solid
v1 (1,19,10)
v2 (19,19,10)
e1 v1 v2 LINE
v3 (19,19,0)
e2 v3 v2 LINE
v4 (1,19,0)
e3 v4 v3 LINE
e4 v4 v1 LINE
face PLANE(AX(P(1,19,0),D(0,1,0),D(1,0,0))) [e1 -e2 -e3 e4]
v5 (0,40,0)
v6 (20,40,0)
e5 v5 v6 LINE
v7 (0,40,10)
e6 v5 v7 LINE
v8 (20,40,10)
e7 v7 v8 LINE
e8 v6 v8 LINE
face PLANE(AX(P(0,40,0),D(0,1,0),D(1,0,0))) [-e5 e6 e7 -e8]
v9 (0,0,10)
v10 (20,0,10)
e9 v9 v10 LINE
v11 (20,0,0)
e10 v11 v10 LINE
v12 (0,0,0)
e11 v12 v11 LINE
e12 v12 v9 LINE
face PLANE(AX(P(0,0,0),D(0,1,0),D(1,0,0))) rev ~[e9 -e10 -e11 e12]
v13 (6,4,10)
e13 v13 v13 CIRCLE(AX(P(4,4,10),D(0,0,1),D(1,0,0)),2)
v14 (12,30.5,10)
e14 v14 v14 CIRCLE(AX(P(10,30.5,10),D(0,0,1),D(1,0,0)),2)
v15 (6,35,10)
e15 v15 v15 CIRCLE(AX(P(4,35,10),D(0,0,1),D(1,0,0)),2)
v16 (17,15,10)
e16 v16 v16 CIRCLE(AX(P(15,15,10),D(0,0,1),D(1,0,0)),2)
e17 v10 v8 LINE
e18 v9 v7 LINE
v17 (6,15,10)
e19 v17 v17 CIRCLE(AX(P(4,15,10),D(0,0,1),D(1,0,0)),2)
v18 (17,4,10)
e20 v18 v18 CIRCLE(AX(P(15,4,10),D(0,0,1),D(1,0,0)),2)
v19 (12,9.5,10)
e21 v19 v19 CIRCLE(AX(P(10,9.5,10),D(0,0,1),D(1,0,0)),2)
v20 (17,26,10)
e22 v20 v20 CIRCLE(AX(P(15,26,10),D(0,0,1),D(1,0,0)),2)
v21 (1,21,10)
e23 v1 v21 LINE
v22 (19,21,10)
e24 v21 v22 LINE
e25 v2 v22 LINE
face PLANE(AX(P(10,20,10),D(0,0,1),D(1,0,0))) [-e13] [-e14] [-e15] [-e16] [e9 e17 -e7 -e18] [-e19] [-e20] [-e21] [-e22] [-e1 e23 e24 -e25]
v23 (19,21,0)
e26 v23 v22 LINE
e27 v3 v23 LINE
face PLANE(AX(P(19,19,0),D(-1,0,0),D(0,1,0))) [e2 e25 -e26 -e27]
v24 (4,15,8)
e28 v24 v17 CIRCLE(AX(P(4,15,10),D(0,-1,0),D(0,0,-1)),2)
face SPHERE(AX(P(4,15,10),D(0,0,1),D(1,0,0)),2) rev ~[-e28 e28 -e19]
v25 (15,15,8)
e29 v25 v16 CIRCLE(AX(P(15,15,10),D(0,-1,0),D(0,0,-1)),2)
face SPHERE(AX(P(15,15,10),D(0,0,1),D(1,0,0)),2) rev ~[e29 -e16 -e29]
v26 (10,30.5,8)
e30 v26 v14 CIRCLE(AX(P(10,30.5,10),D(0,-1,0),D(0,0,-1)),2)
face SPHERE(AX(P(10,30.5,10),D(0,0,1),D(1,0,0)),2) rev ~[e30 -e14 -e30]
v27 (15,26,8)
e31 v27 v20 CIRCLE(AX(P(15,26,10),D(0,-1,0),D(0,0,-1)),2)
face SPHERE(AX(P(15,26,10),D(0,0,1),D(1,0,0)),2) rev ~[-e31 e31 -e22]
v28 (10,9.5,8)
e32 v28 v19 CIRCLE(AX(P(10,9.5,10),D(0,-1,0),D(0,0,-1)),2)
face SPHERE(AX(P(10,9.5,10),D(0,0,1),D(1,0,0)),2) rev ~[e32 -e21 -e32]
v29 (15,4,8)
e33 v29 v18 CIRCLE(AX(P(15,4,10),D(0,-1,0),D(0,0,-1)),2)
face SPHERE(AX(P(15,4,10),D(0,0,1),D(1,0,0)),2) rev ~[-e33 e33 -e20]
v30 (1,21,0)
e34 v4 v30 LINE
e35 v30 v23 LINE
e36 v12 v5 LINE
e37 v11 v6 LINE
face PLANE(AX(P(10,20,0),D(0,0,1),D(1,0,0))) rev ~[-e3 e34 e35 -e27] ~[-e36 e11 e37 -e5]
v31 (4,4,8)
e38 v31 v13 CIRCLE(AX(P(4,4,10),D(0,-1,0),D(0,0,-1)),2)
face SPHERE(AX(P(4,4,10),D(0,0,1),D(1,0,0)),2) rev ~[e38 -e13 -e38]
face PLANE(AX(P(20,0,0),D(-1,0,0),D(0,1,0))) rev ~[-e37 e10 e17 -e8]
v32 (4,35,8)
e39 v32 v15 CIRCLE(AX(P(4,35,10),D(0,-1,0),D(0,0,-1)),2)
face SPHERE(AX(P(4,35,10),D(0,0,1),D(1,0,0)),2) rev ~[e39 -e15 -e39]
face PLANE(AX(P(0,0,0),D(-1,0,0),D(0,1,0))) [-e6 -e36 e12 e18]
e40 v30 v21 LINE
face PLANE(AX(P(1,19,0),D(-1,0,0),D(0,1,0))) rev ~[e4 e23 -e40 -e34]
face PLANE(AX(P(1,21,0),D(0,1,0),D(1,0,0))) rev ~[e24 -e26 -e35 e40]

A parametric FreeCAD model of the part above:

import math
import FreeCAD as App
import Part
import Sketcher

V = App.Vector

doc = App.newDocument("Part")
body = doc.addObject("PartDesign::Body", "Body")

sketch1 = body.newObject("Sketcher::SketchObject", "Sketch")
sketch1.AttachmentSupport = (doc.getObject("XZ_Plane"), [""])
sketch1.MapMode = "FlatFace"
sketch1.AttachmentOffset = App.Placement(V(0, 0, -4), App.Rotation())
sketch1.addGeometry(Part.ArcOfCircle(Part.Circle(V(4, 10, 0), V(0, 0, 1), 2), math.radians(-90), math.radians(90)), False)
sketch1.addGeometry(Part.LineSegment(V(4, 12, 0), V(4, 8, 0)), False)
sketch1.addGeometry(Part.LineSegment(V(4, 8, 0), V(4, 12, 0)), True)
sketch1.addConstraint(Sketcher.Constraint("Coincident", 0, 1, 1, 2))
sketch1.addConstraint(Sketcher.Constraint("Coincident", 1, 1, 0, 2))
sketch1.addConstraint(Sketcher.Constraint("Vertical", 1))
sketch1.addConstraint(Sketcher.Constraint("Vertical", 2))
sketch1.addConstraint(Sketcher.Constraint("Coincident", 2, 1, 0, 1))
sketch1.addConstraint(Sketcher.Constraint("Equal", 1, 2))
sketch1.addConstraint(Sketcher.Constraint("Radius", 0, 2.0))
sketch1.addConstraint(Sketcher.Constraint("DistanceX", -1, 1, 0, 3, 4.0))
sketch1.addConstraint(Sketcher.Constraint("DistanceY", -1, 1, 0, 3, 10.0))
sketch1.addConstraint(Sketcher.Constraint("DistanceX", -1, 1, 0, 1, 4.0))
revolution = body.newObject("PartDesign::Revolution", "Revolution")
revolution.Profile = sketch1
revolution.ReferenceAxis = (sketch1, ["Axis0"])
revolution.Angle = 360
body2 = doc.addObject("PartDesign::Body", "Body001")

sketch2 = body2.newObject("Sketcher::SketchObject", "Sketch001")
sketch2.AttachmentSupport = (doc.getObject("XZ_Plane001"), [""])
sketch2.MapMode = "FlatFace"
sketch2.AttachmentOffset = App.Placement(V(0, 0, -4), App.Rotation())
sketch2.addGeometry(Part.ArcOfCircle(Part.Circle(V(15, 10, 0), V(0, 0, 1), 2), math.radians(-90), math.radians(90)), False)
sketch2.addGeometry(Part.LineSegment(V(15, 12, 0), V(15, 8, 0)), False)
sketch2.addGeometry(Part.LineSegment(V(15, 8, 0), V(15, 12, 0)), True)
sketch2.addConstraint(Sketcher.Constraint("Coincident", 0, 1, 1, 2))
sketch2.addConstraint(Sketcher.Constraint("Coincident", 1, 1, 0, 2))
sketch2.addConstraint(Sketcher.Constraint("Vertical", 1))
sketch2.addConstraint(Sketcher.Constraint("Vertical", 2))
sketch2.addConstraint(Sketcher.Constraint("Coincident", 2, 1, 0, 1))
sketch2.addConstraint(Sketcher.Constraint("Equal", 1, 2))
sketch2.addConstraint(Sketcher.Constraint("Radius", 0, 2.0))
sketch2.addConstraint(Sketcher.Constraint("DistanceX", -1, 1, 0, 3, 15.0))
sketch2.addConstraint(Sketcher.Constraint("DistanceY", -1, 1, 0, 3, 10.0))
sketch2.addConstraint(Sketcher.Constraint("DistanceX", -1, 1, 0, 1, 15.0))
revolution2 = body2.newObject("PartDesign::Revolution", "Revolution001")
revolution2.Profile = sketch2
revolution2.ReferenceAxis = (sketch2, ["Axis0"])
revolution2.Angle = 360
body3 = doc.addObject("PartDesign::Body", "Body002")

sketch3 = body3.newObject("Sketcher::SketchObject", "Sketch002")
sketch3.AttachmentSupport = (doc.getObject("XZ_Plane002"), [""])
sketch3.MapMode = "FlatFace"
sketch3.AttachmentOffset = App.Placement(V(0, 0, -35), App.Rotation())
sketch3.addGeometry(Part.ArcOfCircle(Part.Circle(V(4, 10, 0), V(0, 0, 1), 2), math.radians(-90), math.radians(90)), False)
sketch3.addGeometry(Part.LineSegment(V(4, 12, 0), V(4, 8, 0)), False)
sketch3.addGeometry(Part.LineSegment(V(4, 8, 0), V(4, 12, 0)), True)
sketch3.addConstraint(Sketcher.Constraint("Coincident", 0, 1, 1, 2))
sketch3.addConstraint(Sketcher.Constraint("Coincident", 1, 1, 0, 2))
sketch3.addConstraint(Sketcher.Constraint("Vertical", 1))
sketch3.addConstraint(Sketcher.Constraint("Vertical", 2))
sketch3.addConstraint(Sketcher.Constraint("Coincident", 2, 1, 0, 1))
sketch3.addConstraint(Sketcher.Constraint("Equal", 1, 2))
sketch3.addConstraint(Sketcher.Constraint("Radius", 0, 2.0))
sketch3.addConstraint(Sketcher.Constraint("DistanceX", -1, 1, 0, 3, 4.0))
sketch3.addConstraint(Sketcher.Constraint("DistanceY", -1, 1, 0, 3, 10.0))
sketch3.addConstraint(Sketcher.Constraint("DistanceX", -1, 1, 0, 1, 4.0))
revolution3 = body3.newObject("PartDesign::Revolution", "Revolution002")
revolution3.Profile = sketch3
revolution3.ReferenceAxis = (sketch3, ["Axis0"])
revolution3.Angle = 360
body4 = doc.addObject("PartDesign::Body", "Body003")

sketch4 = body4.newObject("Sketcher::SketchObject", "Sketch003")
sketch4.AttachmentSupport = (doc.getObject("XZ_Plane003"), [""])
sketch4.MapMode = "FlatFace"
sketch4.AttachmentOffset = App.Placement(V(0, 0, -15), App.Rotation())
sketch4.addGeometry(Part.ArcOfCircle(Part.Circle(V(15, 10, 0), V(0, 0, 1), 2), math.radians(-90), math.radians(90)), False)
sketch4.addGeometry(Part.LineSegment(V(15, 12, 0), V(15, 8, 0)), False)
sketch4.addGeometry(Part.LineSegment(V(15, 8, 0), V(15, 12, 0)), True)
sketch4.addConstraint(Sketcher.Constraint("Coincident", 0, 1, 1, 2))
sketch4.addConstraint(Sketcher.Constraint("Coincident", 1, 1, 0, 2))
sketch4.addConstraint(Sketcher.Constraint("Vertical", 1))
sketch4.addConstraint(Sketcher.Constraint("Vertical", 2))
sketch4.addConstraint(Sketcher.Constraint("Coincident", 2, 1, 0, 1))
sketch4.addConstraint(Sketcher.Constraint("Equal", 1, 2))
sketch4.addConstraint(Sketcher.Constraint("Radius", 0, 2.0))
sketch4.addConstraint(Sketcher.Constraint("DistanceX", -1, 1, 0, 3, 15.0))
sketch4.addConstraint(Sketcher.Constraint("DistanceY", -1, 1, 0, 3, 10.0))
sketch4.addConstraint(Sketcher.Constraint("DistanceX", -1, 1, 0, 1, 15.0))
revolution4 = body4.newObject("PartDesign::Revolution", "Revolution003")
revolution4.Profile = sketch4
revolution4.ReferenceAxis = (sketch4, ["Axis0"])
revolution4.Angle = 360
body5 = doc.addObject("PartDesign::Body", "Body004")

sketch5 = body5.newObject("Sketcher::SketchObject", "Sketch004")
sketch5.AttachmentSupport = (doc.getObject("XZ_Plane004"), [""])
sketch5.MapMode = "FlatFace"
sketch5.AttachmentOffset = App.Placement(V(0, 0, -30.5), App.Rotation())
sketch5.addGeometry(Part.ArcOfCircle(Part.Circle(V(10, 10, 0), V(0, 0, 1), 2), math.radians(-90), math.radians(90)), False)
sketch5.addGeometry(Part.LineSegment(V(10, 12, 0), V(10, 8, 0)), False)
sketch5.addGeometry(Part.LineSegment(V(10, 8, 0), V(10, 12, 0)), True)
sketch5.addConstraint(Sketcher.Constraint("Coincident", 0, 1, 1, 2))
sketch5.addConstraint(Sketcher.Constraint("Coincident", 1, 1, 0, 2))
sketch5.addConstraint(Sketcher.Constraint("Vertical", 1))
sketch5.addConstraint(Sketcher.Constraint("Vertical", 2))
sketch5.addConstraint(Sketcher.Constraint("Coincident", 2, 1, 0, 1))
sketch5.addConstraint(Sketcher.Constraint("Equal", 1, 2))
sketch5.addConstraint(Sketcher.Constraint("Radius", 0, 2.0))
sketch5.addConstraint(Sketcher.Constraint("DistanceX", -1, 1, 0, 3, 10.0))
sketch5.addConstraint(Sketcher.Constraint("DistanceY", -1, 1, 0, 3, 10.0))
sketch5.addConstraint(Sketcher.Constraint("DistanceX", -1, 1, 0, 1, 10.0))
revolution5 = body5.newObject("PartDesign::Revolution", "Revolution004")
revolution5.Profile = sketch5
revolution5.ReferenceAxis = (sketch5, ["Axis0"])
revolution5.Angle = 360
body6 = doc.addObject("PartDesign::Body", "Body005")

sketch6 = body6.newObject("Sketcher::SketchObject", "Sketch005")
sketch6.AttachmentSupport = (doc.getObject("XZ_Plane005"), [""])
sketch6.MapMode = "FlatFace"
sketch6.AttachmentOffset = App.Placement(V(0, 0, -15), App.Rotation())
sketch6.addGeometry(Part.ArcOfCircle(Part.Circle(V(4, 10, 0), V(0, 0, 1), 2), math.radians(-90), math.radians(90)), False)
sketch6.addGeometry(Part.LineSegment(V(4, 12, 0), V(4, 8, 0)), False)
sketch6.addGeometry(Part.LineSegment(V(4, 8, 0), V(4, 12, 0)), True)
sketch6.addConstraint(Sketcher.Constraint("Coincident", 0, 1, 1, 2))
sketch6.addConstraint(Sketcher.Constraint("Coincident", 1, 1, 0, 2))
sketch6.addConstraint(Sketcher.Constraint("Vertical", 1))
sketch6.addConstraint(Sketcher.Constraint("Vertical", 2))
sketch6.addConstraint(Sketcher.Constraint("Coincident", 2, 1, 0, 1))
sketch6.addConstraint(Sketcher.Constraint("Equal", 1, 2))
sketch6.addConstraint(Sketcher.Constraint("Radius", 0, 2.0))
sketch6.addConstraint(Sketcher.Constraint("DistanceX", -1, 1, 0, 3, 4.0))
sketch6.addConstraint(Sketcher.Constraint("DistanceY", -1, 1, 0, 3, 10.0))
sketch6.addConstraint(Sketcher.Constraint("DistanceX", -1, 1, 0, 1, 4.0))
revolution6 = body6.newObject("PartDesign::Revolution", "Revolution005")
revolution6.Profile = sketch6
revolution6.ReferenceAxis = (sketch6, ["Axis0"])
revolution6.Angle = 360
body7 = doc.addObject("PartDesign::Body", "Body006")

sketch7 = body7.newObject("Sketcher::SketchObject", "Sketch006")
sketch7.AttachmentSupport = (doc.getObject("XZ_Plane006"), [""])
sketch7.MapMode = "FlatFace"
sketch7.AttachmentOffset = App.Placement(V(0, 0, -26), App.Rotation())
sketch7.addGeometry(Part.ArcOfCircle(Part.Circle(V(15, 10, 0), V(0, 0, 1), 2), math.radians(-90), math.radians(90)), False)
sketch7.addGeometry(Part.LineSegment(V(15, 12, 0), V(15, 8, 0)), False)
sketch7.addGeometry(Part.LineSegment(V(15, 8, 0), V(15, 12, 0)), True)
sketch7.addConstraint(Sketcher.Constraint("Coincident", 0, 1, 1, 2))
sketch7.addConstraint(Sketcher.Constraint("Coincident", 1, 1, 0, 2))
sketch7.addConstraint(Sketcher.Constraint("Vertical", 1))
sketch7.addConstraint(Sketcher.Constraint("Vertical", 2))
sketch7.addConstraint(Sketcher.Constraint("Coincident", 2, 1, 0, 1))
sketch7.addConstraint(Sketcher.Constraint("Equal", 1, 2))
sketch7.addConstraint(Sketcher.Constraint("Radius", 0, 2.0))
sketch7.addConstraint(Sketcher.Constraint("DistanceX", -1, 1, 0, 3, 15.0))
sketch7.addConstraint(Sketcher.Constraint("DistanceY", -1, 1, 0, 3, 10.0))
sketch7.addConstraint(Sketcher.Constraint("DistanceX", -1, 1, 0, 1, 15.0))
revolution7 = body7.newObject("PartDesign::Revolution", "Revolution006")
revolution7.Profile = sketch7
revolution7.ReferenceAxis = (sketch7, ["Axis0"])
revolution7.Angle = 360
body8 = doc.addObject("PartDesign::Body", "Body007")

sketch8 = body8.newObject("Sketcher::SketchObject", "Sketch007")
sketch8.AttachmentSupport = (doc.getObject("XZ_Plane007"), [""])
sketch8.MapMode = "FlatFace"
sketch8.AttachmentOffset = App.Placement(V(0, 0, -9.5), App.Rotation())
sketch8.addGeometry(Part.ArcOfCircle(Part.Circle(V(10, 10, 0), V(0, 0, 1), 2), math.radians(-90), math.radians(90)), False)
sketch8.addGeometry(Part.LineSegment(V(10, 12, 0), V(10, 8, 0)), False)
sketch8.addGeometry(Part.LineSegment(V(10, 8, 0), V(10, 12, 0)), True)
sketch8.addConstraint(Sketcher.Constraint("Coincident", 0, 1, 1, 2))
sketch8.addConstraint(Sketcher.Constraint("Coincident", 1, 1, 0, 2))
sketch8.addConstraint(Sketcher.Constraint("Vertical", 1))
sketch8.addConstraint(Sketcher.Constraint("Vertical", 2))
sketch8.addConstraint(Sketcher.Constraint("Coincident", 2, 1, 0, 1))
sketch8.addConstraint(Sketcher.Constraint("Equal", 1, 2))
sketch8.addConstraint(Sketcher.Constraint("Radius", 0, 2.0))
sketch8.addConstraint(Sketcher.Constraint("DistanceX", -1, 1, 0, 3, 10.0))
sketch8.addConstraint(Sketcher.Constraint("DistanceY", -1, 1, 0, 3, 10.0))
sketch8.addConstraint(Sketcher.Constraint("DistanceX", -1, 1, 0, 1, 10.0))
revolution8 = body8.newObject("PartDesign::Revolution", "Revolution007")
revolution8.Profile = sketch8
revolution8.ReferenceAxis = (sketch8, ["Axis0"])
revolution8.Angle = 360
body9 = doc.addObject("PartDesign::Body", "Body008")

sketch9 = body9.newObject("Sketcher::SketchObject", "Sketch008")
sketch9.AttachmentSupport = (doc.getObject("XY_Plane008"), [""])
sketch9.MapMode = "FlatFace"
sketch9.addGeometry(Part.LineSegment(V(1, 21, 0), V(1, 19, 0)), False)
sketch9.addGeometry(Part.LineSegment(V(1, 19, 0), V(19, 19, 0)), False)
sketch9.addGeometry(Part.LineSegment(V(19, 19, 0), V(19, 21, 0)), False)
sketch9.addGeometry(Part.LineSegment(V(19, 21, 0), V(1, 21, 0)), False)
sketch9.addConstraint(Sketcher.Constraint("Coincident", 0, 2, 1, 1))
sketch9.addConstraint(Sketcher.Constraint("Coincident", 1, 2, 2, 1))
sketch9.addConstraint(Sketcher.Constraint("Coincident", 2, 2, 3, 1))
sketch9.addConstraint(Sketcher.Constraint("Coincident", 3, 2, 0, 1))
sketch9.addConstraint(Sketcher.Constraint("Vertical", 0))
sketch9.addConstraint(Sketcher.Constraint("Horizontal", 1))
sketch9.addConstraint(Sketcher.Constraint("Vertical", 2))
sketch9.addConstraint(Sketcher.Constraint("Horizontal", 3))
sketch9.addConstraint(Sketcher.Constraint("DistanceX", 1, 1, 1, 2, 18.0))
sketch9.addConstraint(Sketcher.Constraint("DistanceY", 0, 2, 0, 1, 2.0))
sketch9.addConstraint(Sketcher.Constraint("DistanceX", -1, 1, 0, 2, 1.0))
sketch9.addConstraint(Sketcher.Constraint("DistanceY", -1, 1, 0, 2, 19.0))
pad1 = body9.newObject("PartDesign::Pad", "Pad")
pad1.Profile = sketch9
pad1.Length = 10
body10 = doc.addObject("PartDesign::Body", "Body009")

sketch10 = body10.newObject("Sketcher::SketchObject", "Sketch009")
sketch10.AttachmentSupport = (doc.getObject("XY_Plane009"), [""])
sketch10.MapMode = "FlatFace"
sketch10.addGeometry(Part.LineSegment(V(0, 40, 0), V(0, 0, 0)), False)
sketch10.addGeometry(Part.LineSegment(V(0, 0, 0), V(20, 0, 0)), False)
sketch10.addGeometry(Part.LineSegment(V(20, 0, 0), V(20, 40, 0)), False)
sketch10.addGeometry(Part.LineSegment(V(20, 40, 0), V(0, 40, 0)), False)
sketch10.addConstraint(Sketcher.Constraint("Coincident", 0, 2, 1, 1))
sketch10.addConstraint(Sketcher.Constraint("Coincident", 1, 2, 2, 1))
sketch10.addConstraint(Sketcher.Constraint("Coincident", 2, 2, 3, 1))
sketch10.addConstraint(Sketcher.Constraint("Coincident", 3, 2, 0, 1))
sketch10.addConstraint(Sketcher.Constraint("Vertical", 0))
sketch10.addConstraint(Sketcher.Constraint("Horizontal", 1))
sketch10.addConstraint(Sketcher.Constraint("Vertical", 2))
sketch10.addConstraint(Sketcher.Constraint("Horizontal", 3))
sketch10.addConstraint(Sketcher.Constraint("Coincident", 0, 2, -1, 1))
sketch10.addConstraint(Sketcher.Constraint("DistanceX", 1, 1, 1, 2, 20.0))
sketch10.addConstraint(Sketcher.Constraint("DistanceY", 0, 2, 0, 1, 40.0))
pad2 = body10.newObject("PartDesign::Pad", "Pad001")
pad2.Profile = sketch10
pad2.Length = 10
doc.recompute()

boolean = body10.newObject("PartDesign::Boolean", "Boolean")
boolean.Type = "Cut"
boolean.addObjects([body9])
doc.recompute()

boolean2 = body10.newObject("PartDesign::Boolean", "Boolean001")
boolean2.Type = "Cut"
boolean2.addObjects([body8])
doc.recompute()

boolean3 = body10.newObject("PartDesign::Boolean", "Boolean002")
boolean3.Type = "Cut"
boolean3.addObjects([body7])
doc.recompute()

boolean4 = body10.newObject("PartDesign::Boolean", "Boolean003")
boolean4.Type = "Cut"
boolean4.addObjects([body6])
doc.recompute()

boolean5 = body10.newObject("PartDesign::Boolean", "Boolean004")
boolean5.Type = "Cut"
boolean5.addObjects([body5])
doc.recompute()

boolean6 = body10.newObject("PartDesign::Boolean", "Boolean005")
boolean6.Type = "Cut"
boolean6.addObjects([body4])
doc.recompute()

boolean7 = body10.newObject("PartDesign::Boolean", "Boolean006")
boolean7.Type = "Cut"
boolean7.addObjects([body3])
doc.recompute()

boolean8 = body10.newObject("PartDesign::Boolean", "Boolean007")
boolean8.Type = "Cut"
boolean8.addObjects([body2])
doc.recompute()

boolean9 = body10.newObject("PartDesign::Boolean", "Boolean008")
boolean9.Type = "Cut"
boolean9.addObjects([body])

doc.recompute()
